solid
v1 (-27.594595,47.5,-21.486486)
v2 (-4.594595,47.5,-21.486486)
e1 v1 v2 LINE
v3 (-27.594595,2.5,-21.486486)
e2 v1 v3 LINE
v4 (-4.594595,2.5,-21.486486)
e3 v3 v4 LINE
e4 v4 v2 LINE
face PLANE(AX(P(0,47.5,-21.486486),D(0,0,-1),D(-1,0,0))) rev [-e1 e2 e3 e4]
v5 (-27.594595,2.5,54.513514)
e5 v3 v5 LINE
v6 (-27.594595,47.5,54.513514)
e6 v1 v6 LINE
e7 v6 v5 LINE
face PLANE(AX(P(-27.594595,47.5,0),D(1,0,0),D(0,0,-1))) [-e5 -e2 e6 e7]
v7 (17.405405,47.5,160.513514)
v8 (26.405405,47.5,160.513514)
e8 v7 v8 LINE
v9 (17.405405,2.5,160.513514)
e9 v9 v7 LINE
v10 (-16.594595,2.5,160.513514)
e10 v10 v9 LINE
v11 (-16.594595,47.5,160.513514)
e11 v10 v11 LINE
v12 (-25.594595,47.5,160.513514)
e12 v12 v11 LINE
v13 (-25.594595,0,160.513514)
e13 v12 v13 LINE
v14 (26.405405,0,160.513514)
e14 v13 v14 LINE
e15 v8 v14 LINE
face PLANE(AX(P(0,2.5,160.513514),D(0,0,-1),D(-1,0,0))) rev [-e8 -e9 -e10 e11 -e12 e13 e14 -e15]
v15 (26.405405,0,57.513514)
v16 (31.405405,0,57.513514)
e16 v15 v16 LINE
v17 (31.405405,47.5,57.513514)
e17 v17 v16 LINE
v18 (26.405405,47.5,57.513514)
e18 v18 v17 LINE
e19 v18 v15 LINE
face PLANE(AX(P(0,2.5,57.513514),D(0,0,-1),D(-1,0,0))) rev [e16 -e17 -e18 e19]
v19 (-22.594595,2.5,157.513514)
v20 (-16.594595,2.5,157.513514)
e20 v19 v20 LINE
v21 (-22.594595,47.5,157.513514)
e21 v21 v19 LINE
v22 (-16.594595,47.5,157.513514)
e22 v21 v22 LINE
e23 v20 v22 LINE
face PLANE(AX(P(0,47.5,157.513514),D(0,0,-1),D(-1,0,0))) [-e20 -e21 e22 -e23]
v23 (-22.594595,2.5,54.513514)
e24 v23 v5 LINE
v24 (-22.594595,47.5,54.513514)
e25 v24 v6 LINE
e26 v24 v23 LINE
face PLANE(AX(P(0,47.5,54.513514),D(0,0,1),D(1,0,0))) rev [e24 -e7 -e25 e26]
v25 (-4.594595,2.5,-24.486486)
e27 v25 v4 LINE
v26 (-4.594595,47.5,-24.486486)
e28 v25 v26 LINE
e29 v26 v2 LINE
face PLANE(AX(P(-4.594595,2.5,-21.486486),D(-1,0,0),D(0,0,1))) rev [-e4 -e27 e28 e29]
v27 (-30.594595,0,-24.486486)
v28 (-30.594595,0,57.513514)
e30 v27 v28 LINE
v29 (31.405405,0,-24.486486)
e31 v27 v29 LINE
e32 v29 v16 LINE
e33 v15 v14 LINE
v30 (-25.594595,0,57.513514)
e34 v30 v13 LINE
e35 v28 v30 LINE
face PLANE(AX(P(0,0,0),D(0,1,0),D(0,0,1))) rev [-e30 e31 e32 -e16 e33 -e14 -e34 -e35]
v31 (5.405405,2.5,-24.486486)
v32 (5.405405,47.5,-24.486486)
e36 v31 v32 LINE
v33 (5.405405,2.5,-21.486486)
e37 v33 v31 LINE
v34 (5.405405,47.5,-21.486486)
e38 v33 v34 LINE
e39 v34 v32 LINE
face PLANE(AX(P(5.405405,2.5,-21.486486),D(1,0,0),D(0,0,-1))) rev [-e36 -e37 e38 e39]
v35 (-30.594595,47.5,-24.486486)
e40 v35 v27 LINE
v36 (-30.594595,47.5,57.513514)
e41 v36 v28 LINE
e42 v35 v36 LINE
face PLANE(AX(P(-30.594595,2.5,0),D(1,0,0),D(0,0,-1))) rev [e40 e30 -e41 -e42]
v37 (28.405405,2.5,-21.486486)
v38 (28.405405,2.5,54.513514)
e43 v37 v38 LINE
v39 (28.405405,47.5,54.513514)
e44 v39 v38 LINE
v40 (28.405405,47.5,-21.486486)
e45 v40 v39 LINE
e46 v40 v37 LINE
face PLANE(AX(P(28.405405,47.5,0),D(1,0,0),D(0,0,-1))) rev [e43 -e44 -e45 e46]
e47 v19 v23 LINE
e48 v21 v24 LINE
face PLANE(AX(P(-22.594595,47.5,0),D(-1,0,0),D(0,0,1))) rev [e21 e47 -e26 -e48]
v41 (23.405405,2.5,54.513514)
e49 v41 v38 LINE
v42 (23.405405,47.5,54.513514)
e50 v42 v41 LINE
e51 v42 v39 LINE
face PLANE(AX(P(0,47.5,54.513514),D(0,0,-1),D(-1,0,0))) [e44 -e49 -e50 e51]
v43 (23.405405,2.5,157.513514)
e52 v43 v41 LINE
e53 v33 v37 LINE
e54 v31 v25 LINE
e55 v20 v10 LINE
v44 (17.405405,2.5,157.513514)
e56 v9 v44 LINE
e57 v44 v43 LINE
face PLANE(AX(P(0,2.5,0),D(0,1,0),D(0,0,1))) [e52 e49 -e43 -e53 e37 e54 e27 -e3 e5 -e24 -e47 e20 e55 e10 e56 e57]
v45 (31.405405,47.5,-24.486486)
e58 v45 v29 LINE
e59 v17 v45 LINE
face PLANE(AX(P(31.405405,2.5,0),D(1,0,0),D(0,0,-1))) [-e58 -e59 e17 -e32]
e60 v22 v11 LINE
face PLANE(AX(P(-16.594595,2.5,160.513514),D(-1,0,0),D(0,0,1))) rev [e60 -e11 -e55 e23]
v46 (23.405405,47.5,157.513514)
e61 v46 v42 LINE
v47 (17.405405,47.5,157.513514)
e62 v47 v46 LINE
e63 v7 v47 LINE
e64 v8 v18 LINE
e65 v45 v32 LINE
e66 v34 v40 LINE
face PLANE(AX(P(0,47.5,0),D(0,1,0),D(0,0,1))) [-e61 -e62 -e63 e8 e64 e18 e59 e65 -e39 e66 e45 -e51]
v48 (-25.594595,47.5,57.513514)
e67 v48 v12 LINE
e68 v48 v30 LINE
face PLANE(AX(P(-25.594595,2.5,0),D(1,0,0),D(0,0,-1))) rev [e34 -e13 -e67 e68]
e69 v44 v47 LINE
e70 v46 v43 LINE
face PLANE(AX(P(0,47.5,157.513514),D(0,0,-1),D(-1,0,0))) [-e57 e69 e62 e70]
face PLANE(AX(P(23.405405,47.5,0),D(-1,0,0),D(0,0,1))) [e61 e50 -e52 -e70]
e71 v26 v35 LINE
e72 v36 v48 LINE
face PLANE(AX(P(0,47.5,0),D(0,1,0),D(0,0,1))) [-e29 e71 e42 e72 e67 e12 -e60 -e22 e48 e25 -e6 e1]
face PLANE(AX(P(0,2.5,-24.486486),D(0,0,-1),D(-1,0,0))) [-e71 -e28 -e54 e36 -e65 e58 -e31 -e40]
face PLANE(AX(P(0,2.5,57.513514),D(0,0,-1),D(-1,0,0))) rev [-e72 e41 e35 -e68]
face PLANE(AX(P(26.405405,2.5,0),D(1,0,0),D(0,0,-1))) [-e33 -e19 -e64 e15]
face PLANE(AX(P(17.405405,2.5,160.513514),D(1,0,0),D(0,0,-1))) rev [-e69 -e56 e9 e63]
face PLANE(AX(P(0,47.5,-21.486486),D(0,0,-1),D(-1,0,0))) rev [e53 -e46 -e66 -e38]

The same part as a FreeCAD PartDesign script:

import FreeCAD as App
import Part
import Sketcher
from FreeCAD import Vector
Q = App.Units.Quantity


def add_polygon(sketch, points):
    """Adds a closed chain of lines whose ends are joined by coincident constraints."""
    first, n = sketch.GeometryCount, len(points)
    for a, b in zip(points, points[1:] + points[:1]):
        sketch.addGeometry(Part.LineSegment(App.Vector(*a, 0), App.Vector(*b, 0)), False)
    for i in range(n):
        sketch.addConstraint(Sketcher.Constraint("Coincident", first + i, 2, first + (i + 1) % n, 1))

doc = App.newDocument("Part")
body = doc.addObject("PartDesign::Body", "Body")

sketch1 = doc.addObject("Sketcher::SketchObject", "Sketch")
body.addObject(sketch1)
sketch1.AttachmentSupport = (doc.XZ_Plane, [""])
sketch1.MapMode = "FlatFace"
add_polygon(sketch1, [(-26, 58), (-26, 161), (26, 161), (26, 58), (31, 58), (31, -24), (-31, -24), (-31, 58)])
sketch1.addConstraint([
    Sketcher.Constraint("Vertical", 0),
    Sketcher.Constraint("Horizontal", 1),
    Sketcher.Constraint("Vertical", 2),
    Sketcher.Constraint("Horizontal", 3),
    Sketcher.Constraint("Vertical", 4),
    Sketcher.Constraint("Horizontal", 5),
    Sketcher.Constraint("Vertical", 6),
    Sketcher.Constraint("Horizontal", 7),
    Sketcher.Constraint("Horizontal", 3, 2, 6, 2),
    Sketcher.Constraint("Equal", 3, 7),
    Sketcher.Constraint("DistanceX", 1, 1, 1, 2, Q("52 mm")),
    Sketcher.Constraint("DistanceX", 3, 1, 3, 2, Q("5 mm")),
    Sketcher.Constraint("DistanceY", 0, 1, 0, 2, Q("103 mm")),
    Sketcher.Constraint("DistanceY", 4, 2, 4, 1, Q("82 mm")),
    Sketcher.Constraint("DistanceX", 0, 2, -1, 1, Q("25.594595 mm")),
    Sketcher.Constraint("DistanceY", -1, 1, 0, 2, Q("160.513514 mm")),
])
pad1 = doc.addObject("PartDesign::Pad", "Pad")
body.addObject(pad1)
pad1.Profile = sketch1
pad1.Length = 2.5
pad1.Reversed = True

sketch2 = doc.addObject("Sketcher::SketchObject", "Sketch001")
body.addObject(sketch2)
sketch2.AttachmentSupport = (doc.XZ_Plane, [""])
sketch2.MapMode = "FlatFace"
sketch2.AttachmentOffset = App.Placement(Vector(0, 0, -2.5), App.Rotation())
add_polygon(sketch2, [(-26, 161), (26, 161), (26, 58), (31, 58), (31, -24), (-31, -24), (-31, 58), (-26, 58)])
add_polygon(sketch2, [(23, 158), (-23, 158), (-23, 55), (-28, 55), (-28, -21), (28, -21), (28, 55), (23, 55)])
sketch2.addConstraint([
    Sketcher.Constraint("Horizontal", 0),
    Sketcher.Constraint("Vertical", 1),
    Sketcher.Constraint("Horizontal", 2),
    Sketcher.Constraint("Vertical", 3),
    Sketcher.Constraint("Horizontal", 4),
    Sketcher.Constraint("Vertical", 5),
    Sketcher.Constraint("Horizontal", 6),
    Sketcher.Constraint("Vertical", 7),
    Sketcher.Constraint("Horizontal", 8),
    Sketcher.Constraint("Vertical", 9),
    Sketcher.Constraint("Horizontal", 10),
    Sketcher.Constraint("Vertical", 11),
    Sketcher.Constraint("Horizontal", 12),
    Sketcher.Constraint("Vertical", 13),
    Sketcher.Constraint("Horizontal", 14),
    Sketcher.Constraint("Vertical", 15),
    Sketcher.Constraint("Horizontal", 2, 2, 5, 2),
    Sketcher.Constraint("Horizontal", 10, 2, 13, 2),
    Sketcher.Constraint("Equal", 2, 6),
    Sketcher.Constraint("Equal", 6, 10),
    Sketcher.Constraint("Equal", 10, 14),
    Sketcher.Constraint("Equal", 7, 9),
    Sketcher.Constraint("DistanceX", 0, 1, 0, 2, Q("52 mm")),
    Sketcher.Constraint("DistanceX", 2, 1, 2, 2, Q("5 mm")),
    Sketcher.Constraint("DistanceX", 8, 2, 8, 1, Q("46 mm")),
    Sketcher.Constraint("DistanceY", 1, 2, 1, 1, Q("103 mm")),
    Sketcher.Constraint("DistanceY", 3, 2, 3, 1, Q("82 mm")),
    Sketcher.Constraint("DistanceY", 11, 2, 11, 1, Q("76 mm")),
    Sketcher.Constraint("DistanceX", 7, 2, 8, 2, Q("3 mm")),
    Sketcher.Constraint("DistanceY", 8, 2, 7, 2, Q("3 mm")),
    Sketcher.Constraint("DistanceX", -1, 1, 0, 2, Q("26.405405 mm")),
    Sketcher.Constraint("DistanceY", -1, 1, 0, 2, Q("160.513514 mm")),
])
pad2 = doc.addObject("PartDesign::Pad", "Pad001")
body.addObject(pad2)
pad2.Profile = sketch2
pad2.Length = 45
pad2.Reversed = True

sketch3 = doc.addObject("Sketcher::SketchObject", "Sketch002")
body.addObject(sketch3)
sketch3.AttachmentSupport = (doc.XZ_Plane, [""])
sketch3.MapMode = "FlatFace"
sketch3.AttachmentOffset = App.Placement(Vector(0, 0, -47.5), App.Rotation())
add_polygon(sketch3, [(-4.6, -24.5), (-4.6, -21.5), (5.4, -21.5), (5.4, -24.5)])
add_polygon(sketch3, [(-16.6, 157.5), (-16.6, 160.5), (17.4, 160.5), (17.4, 157.5)])
sketch3.addConstraint([
    Sketcher.Constraint("Vertical", 0),
    Sketcher.Constraint("Horizontal", 1),
    Sketcher.Constraint("Vertical", 2),
    Sketcher.Constraint("Horizontal", 3),
    Sketcher.Constraint("Vertical", 4),
    Sketcher.Constraint("Horizontal", 5),
    Sketcher.Constraint("Vertical", 6),
    Sketcher.Constraint("Horizontal", 7),
    Sketcher.Constraint("Equal", 2, 4),
    Sketcher.Constraint("DistanceX", 1, 1, 1, 2, Q("10 mm")),
    Sketcher.Constraint("DistanceX", 5, 1, 5, 2, Q("34 mm")),
    Sketcher.Constraint("DistanceY", 0, 1, 0, 2, Q("3 mm")),
    Sketcher.Constraint("DistanceX", 4, 2, 0, 2, Q("12 mm")),
    Sketcher.Constraint("DistanceY", 0, 2, 4, 2, Q("182 mm")),
    Sketcher.Constraint("DistanceX", 0, 2, -1, 1, Q("4.594595 mm")),
    Sketcher.Constraint("DistanceY", 0, 2, -1, 1, Q("21.486486 mm")),
])
pocket1 = doc.addObject("PartDesign::Pocket", "Pocket")
body.addObject(pocket1)
pocket1.Profile = sketch3
pocket1.Length = 45
pocket1.Reversed = True

doc.recompute()
